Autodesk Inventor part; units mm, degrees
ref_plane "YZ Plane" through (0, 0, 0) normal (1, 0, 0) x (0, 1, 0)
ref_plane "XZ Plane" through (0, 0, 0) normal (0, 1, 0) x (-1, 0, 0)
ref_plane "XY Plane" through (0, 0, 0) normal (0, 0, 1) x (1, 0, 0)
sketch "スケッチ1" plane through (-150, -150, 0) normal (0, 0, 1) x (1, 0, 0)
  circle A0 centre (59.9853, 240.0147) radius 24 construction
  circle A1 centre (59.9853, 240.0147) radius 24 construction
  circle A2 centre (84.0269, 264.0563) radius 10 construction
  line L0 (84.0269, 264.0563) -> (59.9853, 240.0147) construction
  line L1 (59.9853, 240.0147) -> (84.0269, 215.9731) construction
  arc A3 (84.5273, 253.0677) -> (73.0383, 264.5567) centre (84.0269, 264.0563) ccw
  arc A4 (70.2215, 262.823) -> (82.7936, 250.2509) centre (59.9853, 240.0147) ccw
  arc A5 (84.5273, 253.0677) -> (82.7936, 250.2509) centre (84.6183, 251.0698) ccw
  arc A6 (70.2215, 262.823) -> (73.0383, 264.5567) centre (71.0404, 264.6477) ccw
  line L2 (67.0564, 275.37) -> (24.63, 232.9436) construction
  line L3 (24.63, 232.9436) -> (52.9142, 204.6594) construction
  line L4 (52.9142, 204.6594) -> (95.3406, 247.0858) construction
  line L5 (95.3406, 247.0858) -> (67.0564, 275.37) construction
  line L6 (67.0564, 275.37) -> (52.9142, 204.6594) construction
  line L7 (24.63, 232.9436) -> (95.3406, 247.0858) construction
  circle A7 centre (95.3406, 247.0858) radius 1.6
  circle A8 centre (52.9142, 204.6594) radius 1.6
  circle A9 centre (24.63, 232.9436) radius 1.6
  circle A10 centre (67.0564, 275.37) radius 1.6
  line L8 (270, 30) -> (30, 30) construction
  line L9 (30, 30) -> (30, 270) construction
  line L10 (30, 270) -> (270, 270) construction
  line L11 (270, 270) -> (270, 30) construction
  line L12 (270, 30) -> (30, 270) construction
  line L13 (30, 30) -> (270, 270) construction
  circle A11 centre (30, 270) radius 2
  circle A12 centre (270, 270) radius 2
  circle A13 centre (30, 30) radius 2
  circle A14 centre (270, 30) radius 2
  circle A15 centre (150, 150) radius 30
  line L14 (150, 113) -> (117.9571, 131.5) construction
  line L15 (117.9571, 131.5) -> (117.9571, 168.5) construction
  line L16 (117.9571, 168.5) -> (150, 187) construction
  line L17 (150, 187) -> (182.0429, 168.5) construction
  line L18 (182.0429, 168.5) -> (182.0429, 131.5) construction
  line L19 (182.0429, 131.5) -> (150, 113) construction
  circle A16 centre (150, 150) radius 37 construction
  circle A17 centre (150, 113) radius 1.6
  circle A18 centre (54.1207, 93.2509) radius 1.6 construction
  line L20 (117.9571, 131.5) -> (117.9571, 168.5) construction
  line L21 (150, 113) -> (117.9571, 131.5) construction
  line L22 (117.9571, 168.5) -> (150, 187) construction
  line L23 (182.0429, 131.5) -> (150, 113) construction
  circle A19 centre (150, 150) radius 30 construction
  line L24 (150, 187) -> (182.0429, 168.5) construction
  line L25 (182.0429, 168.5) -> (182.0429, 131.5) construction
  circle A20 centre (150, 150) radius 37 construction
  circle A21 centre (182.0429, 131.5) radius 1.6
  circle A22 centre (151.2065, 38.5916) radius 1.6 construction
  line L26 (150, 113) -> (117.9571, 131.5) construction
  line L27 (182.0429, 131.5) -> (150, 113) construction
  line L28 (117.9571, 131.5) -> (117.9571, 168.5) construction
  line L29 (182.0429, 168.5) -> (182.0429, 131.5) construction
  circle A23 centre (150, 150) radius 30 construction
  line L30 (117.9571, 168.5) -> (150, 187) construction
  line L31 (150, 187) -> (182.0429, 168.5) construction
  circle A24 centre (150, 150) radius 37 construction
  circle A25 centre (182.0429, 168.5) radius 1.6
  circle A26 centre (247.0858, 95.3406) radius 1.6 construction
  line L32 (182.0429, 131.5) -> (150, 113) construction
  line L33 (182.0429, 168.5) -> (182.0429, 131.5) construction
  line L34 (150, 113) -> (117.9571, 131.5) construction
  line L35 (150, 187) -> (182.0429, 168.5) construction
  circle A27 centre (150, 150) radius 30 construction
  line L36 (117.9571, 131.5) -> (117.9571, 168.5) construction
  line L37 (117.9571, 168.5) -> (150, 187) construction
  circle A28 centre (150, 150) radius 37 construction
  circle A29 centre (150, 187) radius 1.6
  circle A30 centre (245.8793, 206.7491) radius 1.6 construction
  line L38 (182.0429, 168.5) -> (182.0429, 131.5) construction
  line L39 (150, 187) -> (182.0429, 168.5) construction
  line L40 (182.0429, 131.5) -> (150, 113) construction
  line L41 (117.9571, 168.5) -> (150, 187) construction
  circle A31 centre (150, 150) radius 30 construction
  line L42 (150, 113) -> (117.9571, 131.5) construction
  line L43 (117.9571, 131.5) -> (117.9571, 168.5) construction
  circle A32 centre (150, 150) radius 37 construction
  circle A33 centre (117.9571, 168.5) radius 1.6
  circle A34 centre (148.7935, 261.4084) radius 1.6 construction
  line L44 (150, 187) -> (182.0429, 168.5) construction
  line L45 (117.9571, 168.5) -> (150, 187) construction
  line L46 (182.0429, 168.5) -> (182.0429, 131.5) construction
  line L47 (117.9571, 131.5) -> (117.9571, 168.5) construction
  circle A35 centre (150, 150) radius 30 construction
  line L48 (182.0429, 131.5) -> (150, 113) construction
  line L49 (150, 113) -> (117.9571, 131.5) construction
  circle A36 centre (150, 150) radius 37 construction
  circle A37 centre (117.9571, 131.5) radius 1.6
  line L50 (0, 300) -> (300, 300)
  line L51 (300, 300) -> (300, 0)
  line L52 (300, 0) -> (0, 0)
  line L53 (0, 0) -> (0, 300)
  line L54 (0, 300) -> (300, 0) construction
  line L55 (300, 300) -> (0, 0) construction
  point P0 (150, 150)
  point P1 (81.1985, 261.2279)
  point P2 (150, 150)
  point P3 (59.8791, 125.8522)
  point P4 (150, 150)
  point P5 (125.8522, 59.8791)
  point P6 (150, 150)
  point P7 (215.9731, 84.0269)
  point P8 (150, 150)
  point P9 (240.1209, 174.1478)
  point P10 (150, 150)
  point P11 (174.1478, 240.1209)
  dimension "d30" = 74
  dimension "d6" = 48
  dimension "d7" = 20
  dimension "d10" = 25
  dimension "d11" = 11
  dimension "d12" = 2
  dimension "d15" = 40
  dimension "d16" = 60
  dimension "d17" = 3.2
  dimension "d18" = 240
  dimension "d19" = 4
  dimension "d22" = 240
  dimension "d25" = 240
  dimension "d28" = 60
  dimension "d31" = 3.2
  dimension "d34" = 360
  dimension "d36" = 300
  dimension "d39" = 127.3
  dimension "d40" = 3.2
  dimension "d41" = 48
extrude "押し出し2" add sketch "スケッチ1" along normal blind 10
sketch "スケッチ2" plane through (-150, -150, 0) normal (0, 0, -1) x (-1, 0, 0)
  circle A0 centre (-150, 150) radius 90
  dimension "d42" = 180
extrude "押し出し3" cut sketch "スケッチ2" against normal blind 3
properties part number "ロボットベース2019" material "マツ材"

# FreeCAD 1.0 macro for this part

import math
import FreeCAD as App
import Part
import Sketcher
from FreeCAD import Vector
Q = App.Units.Quantity


def add_polygon(sketch, points):
    """Adds a closed chain of lines whose ends are joined by coincident constraints."""
    first, n = sketch.GeometryCount, len(points)
    for a, b in zip(points, points[1:] + points[:1]):
        sketch.addGeometry(Part.LineSegment(App.Vector(*a, 0), App.Vector(*b, 0)), False)
    for i in range(n):
        sketch.addConstraint(Sketcher.Constraint("Coincident", first + i, 2, first + (i + 1) % n, 1))

doc = App.newDocument("Part")
params = doc.addObject("Spreadsheet::Sheet", "Params")
for row, (alias, value) in enumerate([
    ("sketch1_diameter", "4 mm"),
    ("sketch1_diameter2", "60 mm"),
    ("sketch1_radius", "11 mm"),
    ("sketch1_radius2", "25 mm"),
    ("sketch1_diameter3", "3.2 mm"),
    ("pad1_length", "10 mm"),
    ("sketch2_diameter", "180 mm"),
    ("pocket1_length", "3 mm"),
], start=1):
    params.set(f"A{row}", alias)
    params.set(f"B{row}", "=" + value)
    params.setAlias(f"B{row}", alias)

body = doc.addObject("PartDesign::Body", "Body")

sketch1 = body.newObject("Sketcher::SketchObject", "Sketch")
sketch1.AttachmentSupport = (doc.getObject("XY_Plane"), [""])
sketch1.MapMode = "FlatFace"
add_polygon(sketch1, [(150, 150), (-150, 150), (-150, -150), (150, -150)])
sketch1.addGeometry(Part.Circle(Vector(-120, -120, 0), Vector(0, 0, 1), 2), False)
sketch1.addGeometry(Part.Circle(Vector(-32, -18.5, 0), Vector(0, 0, 1), 1.6), False)
sketch1.addGeometry(Part.Circle(Vector(120, -120, 0), Vector(0, 0, 1), 2), False)
sketch1.addGeometry(Part.Circle(Vector(0, -37, 0), Vector(0, 0, 1), 1.6), False)
sketch1.addGeometry(Part.Circle(Vector(32, -18.5, 0), Vector(0, 0, 1), 1.6), False)
sketch1.addGeometry(Part.Circle(Vector(-97.1, 54.7, 0), Vector(0, 0, 1), 1.6), False)
sketch1.addGeometry(Part.Circle(Vector(-32, 18.5, 0), Vector(0, 0, 1), 1.6), False)
sketch1.addGeometry(Part.Circle(Vector(-125.4, 82.9, 0), Vector(0, 0, 1), 1.6), False)
sketch1.addGeometry(Part.ArcOfCircle(Part.Circle(Vector(-66, 114.1, 0), Vector(0, 0, 1), 11), math.radians(-87), math.radians(177)), False)
sketch1.addGeometry(Part.ArcOfCircle(Part.Circle(Vector(-65.4, 101.1, 0), Vector(0, 0, 1), 2), math.radians(93), math.radians(204)), False)
sketch1.addGeometry(Part.ArcOfCircle(Part.Circle(Vector(-90, 90, 0), Vector(0, 0, 1), 25), math.radians(66), math.radians(384)), False)
sketch1.addGeometry(Part.ArcOfCircle(Part.Circle(Vector(-79, 114.6, 0), Vector(0, 0, 1), 2), math.radians(-114), math.radians(-3)), False)
sketch1.addGeometry(Part.Circle(Vector(-120, 120, 0), Vector(0, 0, 1), 2), False)
sketch1.addGeometry(Part.Circle(Vector(-82.9, 125.4, 0), Vector(0, 0, 1), 1.6), False)
sketch1.addGeometry(Part.Circle(Vector(-54.7, 97.1, 0), Vector(0, 0, 1), 1.6), False)
sketch1.addGeometry(Part.Circle(Vector(0, 0, 0), Vector(0, 0, 1), 30), False)
sketch1.addGeometry(Part.Circle(Vector(32, 18.5, 0), Vector(0, 0, 1), 1.6), False)
sketch1.addGeometry(Part.Circle(Vector(0, 37, 0), Vector(0, 0, 1), 1.6), False)
sketch1.addGeometry(Part.Circle(Vector(120, 120, 0), Vector(0, 0, 1), 2), False)
sketch1.addConstraint(Sketcher.Constraint("Tangent", 12, 1, 13, 1))
sketch1.addConstraint(Sketcher.Constraint("Tangent", 13, 2, 14, 2))
sketch1.addConstraint(Sketcher.Constraint("Tangent", 14, 1, 15, 1))
sketch1.addConstraint(Sketcher.Constraint("Tangent", 15, 2, 12, 2))
sketch1.addConstraint(Sketcher.Constraint("Horizontal", 0))
sketch1.addConstraint(Sketcher.Constraint("Vertical", 1))
sketch1.addConstraint(Sketcher.Constraint("Horizontal", 2))
sketch1.addConstraint(Sketcher.Constraint("Vertical", 3))
sketch1.addConstraint(Sketcher.Constraint("Coincident", 19, 3, -1, 1))
sketch1.addConstraint(Sketcher.Constraint("Equal", 4, 6))
sketch1.addConstraint(Sketcher.Constraint("Equal", 5, 7))
sketch1.addConstraint(Sketcher.Constraint("Equal", 7, 8))
sketch1.addConstraint(Sketcher.Constraint("Equal", 8, 9))
sketch1.addConstraint(Sketcher.Constraint("Equal", 9, 10))
sketch1.addConstraint(Sketcher.Constraint("Equal", 10, 11))
sketch1.addConstraint(Sketcher.Constraint("Equal", 6, 13))
sketch1.addConstraint(Sketcher.Constraint("Equal", 13, 15))
sketch1.addConstraint(Sketcher.Constraint("Equal", 15, 16))
sketch1.addConstraint(Sketcher.Constraint("Equal", 11, 17))
sketch1.addConstraint(Sketcher.Constraint("Equal", 17, 18))
sketch1.addConstraint(Sketcher.Constraint("Equal", 18, 20))
sketch1.addConstraint(Sketcher.Constraint("Equal", 20, 21))
sketch1.addConstraint(Sketcher.Constraint("Equal", 16, 22))
sketch1.addConstraint(Sketcher.Constraint("Symmetric", 8, 3, 10, 3, -1, 1))
sketch1.addConstraint(Sketcher.Constraint("Symmetric", 6, 3, 16, 3, -1, 1))
sketch1.addConstraint(Sketcher.Constraint("Symmetric", 5, 3, 20, 3, -1, 1))
sketch1.addConstraint(Sketcher.Constraint("Symmetric", 7, 3, 21, 3, -1, 1))
sketch1.addConstraint(Sketcher.Constraint("Symmetric", 4, 3, 22, 3, -1, 1))
sketch1.addConstraint(Sketcher.Constraint("Symmetric", 0, 2, 2, 2, -1, 1))
sketch1.addConstraint(Sketcher.Constraint("Symmetric", 4, 3, 6, 3, -2))
sketch1.addConstraint(Sketcher.Constraint("Symmetric", 5, 3, 8, 3, -2))
sketch1.addConstraint(Sketcher.Constraint("PointOnObject", 7, 3, -2))
sketch1.addConstraint(Sketcher.Constraint("Equal", 2, 1))
sketch1.addConstraint(Sketcher.Constraint("Diameter", 4, Q("4 mm")))
sketch1.addConstraint(Sketcher.Constraint("Diameter", 19, Q("60 mm")))
sketch1.addConstraint(Sketcher.Constraint("Radius", 12, Q("11 mm")))
sketch1.addConstraint(Sketcher.Constraint("Radius", 14, Q("25 mm")))
sketch1.addConstraint(Sketcher.Constraint("Diameter", 5, Q("3.2 mm")))
sketch1.addConstraint(Sketcher.Constraint("DistanceX", 0, 2, 0, 1, Q("300 mm")))
sketch1.addConstraint(Sketcher.Constraint("DistanceX", 4, 3, 6, 3, Q("240 mm")))
sketch1.addConstraint(Sketcher.Constraint("DistanceY", 4, 3, -1, 1, Q("120 mm")))
sketch1.addConstraint(Sketcher.Constraint("DistanceY", 7, 3, -1, 1, Q("37 mm")))
sketch1.addConstraint(Sketcher.Constraint("DistanceY", 5, 3, 10, 3, Q("37 mm")))
sketch1.addConstraint(Sketcher.Constraint("DistanceX", 11, 3, -1, 1, Q("125.37 mm")))
sketch1.addConstraint(Sketcher.Constraint("DistanceY", -1, 1, 17, 3, Q("125.37 mm")))
sketch1.addConstraint(Sketcher.Constraint("DistanceY", 12, 1, 15, 3, Q("11.58 mm")))
sketch1.addConstraint(Sketcher.Constraint("DistanceX", 5, 3, -1, 1, Q("32.043 mm")))
sketch1.addConstraint(Sketcher.Constraint("DistanceX", 12, 3, -1, 1, Q("65.973 mm")))
sketch1.addConstraint(Sketcher.Constraint("DistanceY", -1, 1, 13, 2, Q("100.251 mm")))
sketch1.addConstraint(Sketcher.Constraint("DistanceX", 9, 3, 5, 3, Q("65.043 mm")))
sketch1.addConstraint(Sketcher.Constraint("DistanceY", 9, 3, 12, 3, Q("59.397 mm")))
sketch1.addConstraint(Sketcher.Constraint("DistanceX", 9, 3, 13, 3, Q("31.704 mm")))
sketch1.addConstraint(Sketcher.Constraint("DistanceY", 11, 3, 14, 3, Q("7.071 mm")))
sketch1.addConstraint(Sketcher.Constraint("DistanceX", 17, 3, 15, 3, Q("3.984 mm")))
sketch1.addConstraint(Sketcher.Constraint("DistanceY", 18, 3, 13, 3, Q("3.984 mm")))
sketch1.addConstraint(Sketcher.Constraint("DistanceX", 13, 2, 18, 3, Q("12.547 mm")))
sketch1.setExpression("Constraints[37]", "Params.sketch1_diameter")
sketch1.setExpression("Constraints[38]", "Params.sketch1_diameter2")
sketch1.setExpression("Constraints[39]", "Params.sketch1_radius")
sketch1.setExpression("Constraints[40]", "Params.sketch1_radius2")
sketch1.setExpression("Constraints[41]", "Params.sketch1_diameter3")
pad1 = body.newObject("PartDesign::Pad", "Pad")
pad1.Profile = sketch1
pad1.setExpression("Length", "Params.pad1_length")

sketch2 = body.newObject("Sketcher::SketchObject", "Sketch001")
sketch2.AttachmentSupport = (doc.getObject("XY_Plane"), [""])
sketch2.MapMode = "FlatFace"
sketch2.addGeometry(Part.Circle(Vector(0, 0, 0), Vector(0, 0, 1), 90), False)
sketch2.addConstraint(Sketcher.Constraint("Coincident", 0, 3, -1, 1))
sketch2.addConstraint(Sketcher.Constraint("Diameter", 0, Q("180 mm")))
sketch2.setExpression("Constraints[1]", "Params.sketch2_diameter")
pocket1 = body.newObject("PartDesign::Pocket", "Pocket")
pocket1.Profile = sketch2
pocket1.setExpression("Length", "Params.pocket1_length")
pocket1.Reversed = True

doc.recompute()
